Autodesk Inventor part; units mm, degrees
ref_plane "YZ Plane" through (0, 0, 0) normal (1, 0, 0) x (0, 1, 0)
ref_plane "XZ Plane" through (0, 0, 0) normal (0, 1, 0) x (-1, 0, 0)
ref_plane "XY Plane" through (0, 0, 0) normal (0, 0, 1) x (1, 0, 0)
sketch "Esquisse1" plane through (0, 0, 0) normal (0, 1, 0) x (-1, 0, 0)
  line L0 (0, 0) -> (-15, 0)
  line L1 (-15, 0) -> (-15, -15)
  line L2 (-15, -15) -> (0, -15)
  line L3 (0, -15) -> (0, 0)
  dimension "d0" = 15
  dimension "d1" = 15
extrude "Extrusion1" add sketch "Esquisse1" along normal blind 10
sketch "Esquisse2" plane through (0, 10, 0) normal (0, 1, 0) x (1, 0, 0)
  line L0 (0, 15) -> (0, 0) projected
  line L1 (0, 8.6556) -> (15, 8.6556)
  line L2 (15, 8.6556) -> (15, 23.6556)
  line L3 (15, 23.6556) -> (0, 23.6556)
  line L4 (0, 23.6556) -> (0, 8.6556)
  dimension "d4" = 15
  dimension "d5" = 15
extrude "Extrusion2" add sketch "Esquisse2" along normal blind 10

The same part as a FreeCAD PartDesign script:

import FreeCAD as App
import Part
import Sketcher

V = App.Vector
Q = App.Units.Quantity


def add_polygon(sketch, points):
    """Adds a closed chain of lines whose ends are joined by coincident constraints."""
    first, n = sketch.GeometryCount, len(points)
    for a, b in zip(points, points[1:] + points[:1]):
        sketch.addGeometry(Part.LineSegment(App.Vector(*a, 0), App.Vector(*b, 0)), False)
    for i in range(n):
        sketch.addConstraint(Sketcher.Constraint("Coincident", first + i, 2, first + (i + 1) % n, 1))

doc = App.newDocument("Part")
body = doc.addObject("PartDesign::Body", "Body")

# Sketch on XZ plane
sketch1 = body.newObject("Sketcher::SketchObject", "Sketch")
sketch1.AttachmentSupport = (doc.getObject("XZ_Plane"), [""])
sketch1.MapMode = "FlatFace"
add_polygon(sketch1, [(0, -15), (0, 0), (15, 0), (15, -15)])  # lines 0-3
sketch1.addConstraint([
    Sketcher.Constraint("Vertical", 0),
    Sketcher.Constraint("Horizontal", 1),
    Sketcher.Constraint("Vertical", 2),
    Sketcher.Constraint("Horizontal", 3),
    Sketcher.Constraint("Coincident", 0, 2, -1, 1),
    Sketcher.Constraint("Equal", 3, 0),
    Sketcher.Constraint("DistanceX", 1, 1, 1, 2, Q("15 mm")),
])
pad1 = body.newObject("PartDesign::Pad", "Pad")
pad1.Profile = sketch1
pad1.Length = 10
pad1.Reversed = True

# Sketch on XZ plane
sketch2 = body.newObject("Sketcher::SketchObject", "Sketch001")
sketch2.AttachmentSupport = (doc.getObject("XZ_Plane"), [""])
sketch2.MapMode = "FlatFace"
sketch2.AttachmentOffset = App.Placement(V(0, 0, -10), App.Rotation())
add_polygon(sketch2, [(0, -23.6556), (0, -8.6556), (15, -8.6556), (15, -23.6556)])  # lines 0-3
sketch2.addConstraint([
    Sketcher.Constraint("Vertical", 0),
    Sketcher.Constraint("Horizontal", 1),
    Sketcher.Constraint("Vertical", 2),
    Sketcher.Constraint("Horizontal", 3),
    Sketcher.Constraint("PointOnObject", 0, 2, -2),
    Sketcher.Constraint("Equal", 3, 0),
    Sketcher.Constraint("DistanceX", 1, 1, 1, 2, Q("15 mm")),
    Sketcher.Constraint("DistanceY", 0, 2, -1, 1, Q("8.6556 mm")),
])
pad2 = body.newObject("PartDesign::Pad", "Pad001")
pad2.Profile = sketch2
pad2.Length = 10
pad2.Reversed = True

doc.recompute()
